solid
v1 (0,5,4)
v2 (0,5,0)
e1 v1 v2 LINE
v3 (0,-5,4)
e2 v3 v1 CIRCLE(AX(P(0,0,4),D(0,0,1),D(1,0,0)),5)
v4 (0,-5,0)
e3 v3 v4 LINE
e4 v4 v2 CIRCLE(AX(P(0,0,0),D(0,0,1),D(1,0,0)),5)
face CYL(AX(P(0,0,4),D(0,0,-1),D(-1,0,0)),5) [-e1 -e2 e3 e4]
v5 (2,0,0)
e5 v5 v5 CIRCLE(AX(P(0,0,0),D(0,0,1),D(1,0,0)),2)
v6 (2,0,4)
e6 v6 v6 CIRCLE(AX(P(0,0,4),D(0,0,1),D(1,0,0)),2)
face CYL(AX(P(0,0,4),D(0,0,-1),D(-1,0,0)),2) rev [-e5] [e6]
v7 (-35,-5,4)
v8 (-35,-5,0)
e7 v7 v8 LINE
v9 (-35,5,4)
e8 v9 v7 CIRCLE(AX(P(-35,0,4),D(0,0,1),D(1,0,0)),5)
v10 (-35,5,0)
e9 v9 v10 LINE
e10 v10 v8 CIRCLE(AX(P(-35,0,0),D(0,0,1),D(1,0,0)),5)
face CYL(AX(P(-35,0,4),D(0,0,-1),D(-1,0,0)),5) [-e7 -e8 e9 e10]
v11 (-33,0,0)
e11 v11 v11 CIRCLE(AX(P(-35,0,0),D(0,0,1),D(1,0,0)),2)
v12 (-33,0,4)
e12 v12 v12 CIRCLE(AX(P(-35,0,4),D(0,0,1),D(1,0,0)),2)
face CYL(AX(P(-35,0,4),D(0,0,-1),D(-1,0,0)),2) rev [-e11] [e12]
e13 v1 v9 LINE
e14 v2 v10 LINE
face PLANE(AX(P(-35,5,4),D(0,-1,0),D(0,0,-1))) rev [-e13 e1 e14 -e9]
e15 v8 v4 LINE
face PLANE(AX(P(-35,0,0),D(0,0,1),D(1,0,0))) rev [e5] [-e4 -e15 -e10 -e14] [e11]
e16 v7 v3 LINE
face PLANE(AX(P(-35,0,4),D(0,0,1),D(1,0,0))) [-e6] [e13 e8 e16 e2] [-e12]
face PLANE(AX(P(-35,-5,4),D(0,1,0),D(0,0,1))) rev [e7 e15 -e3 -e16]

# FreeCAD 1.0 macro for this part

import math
import FreeCAD as App
import Part
import Sketcher
from FreeCAD import Vector

doc = App.newDocument("Part")
params = doc.addObject("Spreadsheet::Sheet", "Params")
for row, (alias, value) in enumerate([
    ("sketch1_diameter", "4 mm"),
    ("sketch1_radius", "5 mm"),
    ("sketch1_width", "35 mm"),
    ("pad1_length", "4 mm"),
], start=1):
    params.set(f"A{row}", alias)
    params.set(f"B{row}", "=" + value)
    params.setAlias(f"B{row}", alias)

body = doc.addObject("PartDesign::Body", "Body")

# Sketch on XY plane
sketch1 = body.newObject("Sketcher::SketchObject", "Sketch")
sketch1.AttachmentSupport = (doc.getObject("XY_Plane"), [""])
sketch1.MapMode = "FlatFace"
sketch1.addGeometry([
    Part.LineSegment(Vector(0, 5, 0), Vector(-35, 5, 0)),  # 0
    Part.ArcOfCircle(Part.Circle(Vector(-35, 0, 0), Vector(0, 0, 1), 5), math.radians(90), math.radians(270)),  # 1
    Part.LineSegment(Vector(-35, -5, 0), Vector(0, -5, 0)),  # 2
    Part.ArcOfCircle(Part.Circle(Vector(0, 0, 0), Vector(0, 0, 1), 5), math.radians(-90), math.radians(90)),  # 3
    Part.Circle(Vector(0, 0, 0), Vector(0, 0, 1), 2),  # 4
    Part.Circle(Vector(-35, 0, 0), Vector(0, 0, 1), 2),  # 5
], False)
sketch1.addConstraint([
    Sketcher.Constraint("Tangent", 0, 2, 1, 1),
    Sketcher.Constraint("Tangent", 1, 2, 2, 1),
    Sketcher.Constraint("Tangent", 2, 2, 3, 1),
    Sketcher.Constraint("Tangent", 3, 2, 0, 1),
    Sketcher.Constraint("Horizontal", 0),
    Sketcher.Constraint("Horizontal", 2),
    Sketcher.Constraint("Coincident", 3, 3, -1, 1),
    Sketcher.Constraint("Coincident", 4, 3, -1, 1),
    Sketcher.Constraint("Coincident", 5, 3, 1, 3),
    Sketcher.Constraint("Equal", 4, 5),
    Sketcher.Constraint("Diameter", 4, 4.0),
    Sketcher.Constraint("Radius", 1, 5.0),
    Sketcher.Constraint("DistanceX", 0, 2, 0, 1, 35.0),
])
sketch1.setExpression("Constraints[10]", "Params.sketch1_diameter")
sketch1.setExpression("Constraints[11]", "Params.sketch1_radius")
sketch1.setExpression("Constraints[12]", "Params.sketch1_width")
pad1 = body.newObject("PartDesign::Pad", "Pad")
pad1.Profile = sketch1
pad1.setExpression("Length", "Params.pad1_length")

doc.recompute()
